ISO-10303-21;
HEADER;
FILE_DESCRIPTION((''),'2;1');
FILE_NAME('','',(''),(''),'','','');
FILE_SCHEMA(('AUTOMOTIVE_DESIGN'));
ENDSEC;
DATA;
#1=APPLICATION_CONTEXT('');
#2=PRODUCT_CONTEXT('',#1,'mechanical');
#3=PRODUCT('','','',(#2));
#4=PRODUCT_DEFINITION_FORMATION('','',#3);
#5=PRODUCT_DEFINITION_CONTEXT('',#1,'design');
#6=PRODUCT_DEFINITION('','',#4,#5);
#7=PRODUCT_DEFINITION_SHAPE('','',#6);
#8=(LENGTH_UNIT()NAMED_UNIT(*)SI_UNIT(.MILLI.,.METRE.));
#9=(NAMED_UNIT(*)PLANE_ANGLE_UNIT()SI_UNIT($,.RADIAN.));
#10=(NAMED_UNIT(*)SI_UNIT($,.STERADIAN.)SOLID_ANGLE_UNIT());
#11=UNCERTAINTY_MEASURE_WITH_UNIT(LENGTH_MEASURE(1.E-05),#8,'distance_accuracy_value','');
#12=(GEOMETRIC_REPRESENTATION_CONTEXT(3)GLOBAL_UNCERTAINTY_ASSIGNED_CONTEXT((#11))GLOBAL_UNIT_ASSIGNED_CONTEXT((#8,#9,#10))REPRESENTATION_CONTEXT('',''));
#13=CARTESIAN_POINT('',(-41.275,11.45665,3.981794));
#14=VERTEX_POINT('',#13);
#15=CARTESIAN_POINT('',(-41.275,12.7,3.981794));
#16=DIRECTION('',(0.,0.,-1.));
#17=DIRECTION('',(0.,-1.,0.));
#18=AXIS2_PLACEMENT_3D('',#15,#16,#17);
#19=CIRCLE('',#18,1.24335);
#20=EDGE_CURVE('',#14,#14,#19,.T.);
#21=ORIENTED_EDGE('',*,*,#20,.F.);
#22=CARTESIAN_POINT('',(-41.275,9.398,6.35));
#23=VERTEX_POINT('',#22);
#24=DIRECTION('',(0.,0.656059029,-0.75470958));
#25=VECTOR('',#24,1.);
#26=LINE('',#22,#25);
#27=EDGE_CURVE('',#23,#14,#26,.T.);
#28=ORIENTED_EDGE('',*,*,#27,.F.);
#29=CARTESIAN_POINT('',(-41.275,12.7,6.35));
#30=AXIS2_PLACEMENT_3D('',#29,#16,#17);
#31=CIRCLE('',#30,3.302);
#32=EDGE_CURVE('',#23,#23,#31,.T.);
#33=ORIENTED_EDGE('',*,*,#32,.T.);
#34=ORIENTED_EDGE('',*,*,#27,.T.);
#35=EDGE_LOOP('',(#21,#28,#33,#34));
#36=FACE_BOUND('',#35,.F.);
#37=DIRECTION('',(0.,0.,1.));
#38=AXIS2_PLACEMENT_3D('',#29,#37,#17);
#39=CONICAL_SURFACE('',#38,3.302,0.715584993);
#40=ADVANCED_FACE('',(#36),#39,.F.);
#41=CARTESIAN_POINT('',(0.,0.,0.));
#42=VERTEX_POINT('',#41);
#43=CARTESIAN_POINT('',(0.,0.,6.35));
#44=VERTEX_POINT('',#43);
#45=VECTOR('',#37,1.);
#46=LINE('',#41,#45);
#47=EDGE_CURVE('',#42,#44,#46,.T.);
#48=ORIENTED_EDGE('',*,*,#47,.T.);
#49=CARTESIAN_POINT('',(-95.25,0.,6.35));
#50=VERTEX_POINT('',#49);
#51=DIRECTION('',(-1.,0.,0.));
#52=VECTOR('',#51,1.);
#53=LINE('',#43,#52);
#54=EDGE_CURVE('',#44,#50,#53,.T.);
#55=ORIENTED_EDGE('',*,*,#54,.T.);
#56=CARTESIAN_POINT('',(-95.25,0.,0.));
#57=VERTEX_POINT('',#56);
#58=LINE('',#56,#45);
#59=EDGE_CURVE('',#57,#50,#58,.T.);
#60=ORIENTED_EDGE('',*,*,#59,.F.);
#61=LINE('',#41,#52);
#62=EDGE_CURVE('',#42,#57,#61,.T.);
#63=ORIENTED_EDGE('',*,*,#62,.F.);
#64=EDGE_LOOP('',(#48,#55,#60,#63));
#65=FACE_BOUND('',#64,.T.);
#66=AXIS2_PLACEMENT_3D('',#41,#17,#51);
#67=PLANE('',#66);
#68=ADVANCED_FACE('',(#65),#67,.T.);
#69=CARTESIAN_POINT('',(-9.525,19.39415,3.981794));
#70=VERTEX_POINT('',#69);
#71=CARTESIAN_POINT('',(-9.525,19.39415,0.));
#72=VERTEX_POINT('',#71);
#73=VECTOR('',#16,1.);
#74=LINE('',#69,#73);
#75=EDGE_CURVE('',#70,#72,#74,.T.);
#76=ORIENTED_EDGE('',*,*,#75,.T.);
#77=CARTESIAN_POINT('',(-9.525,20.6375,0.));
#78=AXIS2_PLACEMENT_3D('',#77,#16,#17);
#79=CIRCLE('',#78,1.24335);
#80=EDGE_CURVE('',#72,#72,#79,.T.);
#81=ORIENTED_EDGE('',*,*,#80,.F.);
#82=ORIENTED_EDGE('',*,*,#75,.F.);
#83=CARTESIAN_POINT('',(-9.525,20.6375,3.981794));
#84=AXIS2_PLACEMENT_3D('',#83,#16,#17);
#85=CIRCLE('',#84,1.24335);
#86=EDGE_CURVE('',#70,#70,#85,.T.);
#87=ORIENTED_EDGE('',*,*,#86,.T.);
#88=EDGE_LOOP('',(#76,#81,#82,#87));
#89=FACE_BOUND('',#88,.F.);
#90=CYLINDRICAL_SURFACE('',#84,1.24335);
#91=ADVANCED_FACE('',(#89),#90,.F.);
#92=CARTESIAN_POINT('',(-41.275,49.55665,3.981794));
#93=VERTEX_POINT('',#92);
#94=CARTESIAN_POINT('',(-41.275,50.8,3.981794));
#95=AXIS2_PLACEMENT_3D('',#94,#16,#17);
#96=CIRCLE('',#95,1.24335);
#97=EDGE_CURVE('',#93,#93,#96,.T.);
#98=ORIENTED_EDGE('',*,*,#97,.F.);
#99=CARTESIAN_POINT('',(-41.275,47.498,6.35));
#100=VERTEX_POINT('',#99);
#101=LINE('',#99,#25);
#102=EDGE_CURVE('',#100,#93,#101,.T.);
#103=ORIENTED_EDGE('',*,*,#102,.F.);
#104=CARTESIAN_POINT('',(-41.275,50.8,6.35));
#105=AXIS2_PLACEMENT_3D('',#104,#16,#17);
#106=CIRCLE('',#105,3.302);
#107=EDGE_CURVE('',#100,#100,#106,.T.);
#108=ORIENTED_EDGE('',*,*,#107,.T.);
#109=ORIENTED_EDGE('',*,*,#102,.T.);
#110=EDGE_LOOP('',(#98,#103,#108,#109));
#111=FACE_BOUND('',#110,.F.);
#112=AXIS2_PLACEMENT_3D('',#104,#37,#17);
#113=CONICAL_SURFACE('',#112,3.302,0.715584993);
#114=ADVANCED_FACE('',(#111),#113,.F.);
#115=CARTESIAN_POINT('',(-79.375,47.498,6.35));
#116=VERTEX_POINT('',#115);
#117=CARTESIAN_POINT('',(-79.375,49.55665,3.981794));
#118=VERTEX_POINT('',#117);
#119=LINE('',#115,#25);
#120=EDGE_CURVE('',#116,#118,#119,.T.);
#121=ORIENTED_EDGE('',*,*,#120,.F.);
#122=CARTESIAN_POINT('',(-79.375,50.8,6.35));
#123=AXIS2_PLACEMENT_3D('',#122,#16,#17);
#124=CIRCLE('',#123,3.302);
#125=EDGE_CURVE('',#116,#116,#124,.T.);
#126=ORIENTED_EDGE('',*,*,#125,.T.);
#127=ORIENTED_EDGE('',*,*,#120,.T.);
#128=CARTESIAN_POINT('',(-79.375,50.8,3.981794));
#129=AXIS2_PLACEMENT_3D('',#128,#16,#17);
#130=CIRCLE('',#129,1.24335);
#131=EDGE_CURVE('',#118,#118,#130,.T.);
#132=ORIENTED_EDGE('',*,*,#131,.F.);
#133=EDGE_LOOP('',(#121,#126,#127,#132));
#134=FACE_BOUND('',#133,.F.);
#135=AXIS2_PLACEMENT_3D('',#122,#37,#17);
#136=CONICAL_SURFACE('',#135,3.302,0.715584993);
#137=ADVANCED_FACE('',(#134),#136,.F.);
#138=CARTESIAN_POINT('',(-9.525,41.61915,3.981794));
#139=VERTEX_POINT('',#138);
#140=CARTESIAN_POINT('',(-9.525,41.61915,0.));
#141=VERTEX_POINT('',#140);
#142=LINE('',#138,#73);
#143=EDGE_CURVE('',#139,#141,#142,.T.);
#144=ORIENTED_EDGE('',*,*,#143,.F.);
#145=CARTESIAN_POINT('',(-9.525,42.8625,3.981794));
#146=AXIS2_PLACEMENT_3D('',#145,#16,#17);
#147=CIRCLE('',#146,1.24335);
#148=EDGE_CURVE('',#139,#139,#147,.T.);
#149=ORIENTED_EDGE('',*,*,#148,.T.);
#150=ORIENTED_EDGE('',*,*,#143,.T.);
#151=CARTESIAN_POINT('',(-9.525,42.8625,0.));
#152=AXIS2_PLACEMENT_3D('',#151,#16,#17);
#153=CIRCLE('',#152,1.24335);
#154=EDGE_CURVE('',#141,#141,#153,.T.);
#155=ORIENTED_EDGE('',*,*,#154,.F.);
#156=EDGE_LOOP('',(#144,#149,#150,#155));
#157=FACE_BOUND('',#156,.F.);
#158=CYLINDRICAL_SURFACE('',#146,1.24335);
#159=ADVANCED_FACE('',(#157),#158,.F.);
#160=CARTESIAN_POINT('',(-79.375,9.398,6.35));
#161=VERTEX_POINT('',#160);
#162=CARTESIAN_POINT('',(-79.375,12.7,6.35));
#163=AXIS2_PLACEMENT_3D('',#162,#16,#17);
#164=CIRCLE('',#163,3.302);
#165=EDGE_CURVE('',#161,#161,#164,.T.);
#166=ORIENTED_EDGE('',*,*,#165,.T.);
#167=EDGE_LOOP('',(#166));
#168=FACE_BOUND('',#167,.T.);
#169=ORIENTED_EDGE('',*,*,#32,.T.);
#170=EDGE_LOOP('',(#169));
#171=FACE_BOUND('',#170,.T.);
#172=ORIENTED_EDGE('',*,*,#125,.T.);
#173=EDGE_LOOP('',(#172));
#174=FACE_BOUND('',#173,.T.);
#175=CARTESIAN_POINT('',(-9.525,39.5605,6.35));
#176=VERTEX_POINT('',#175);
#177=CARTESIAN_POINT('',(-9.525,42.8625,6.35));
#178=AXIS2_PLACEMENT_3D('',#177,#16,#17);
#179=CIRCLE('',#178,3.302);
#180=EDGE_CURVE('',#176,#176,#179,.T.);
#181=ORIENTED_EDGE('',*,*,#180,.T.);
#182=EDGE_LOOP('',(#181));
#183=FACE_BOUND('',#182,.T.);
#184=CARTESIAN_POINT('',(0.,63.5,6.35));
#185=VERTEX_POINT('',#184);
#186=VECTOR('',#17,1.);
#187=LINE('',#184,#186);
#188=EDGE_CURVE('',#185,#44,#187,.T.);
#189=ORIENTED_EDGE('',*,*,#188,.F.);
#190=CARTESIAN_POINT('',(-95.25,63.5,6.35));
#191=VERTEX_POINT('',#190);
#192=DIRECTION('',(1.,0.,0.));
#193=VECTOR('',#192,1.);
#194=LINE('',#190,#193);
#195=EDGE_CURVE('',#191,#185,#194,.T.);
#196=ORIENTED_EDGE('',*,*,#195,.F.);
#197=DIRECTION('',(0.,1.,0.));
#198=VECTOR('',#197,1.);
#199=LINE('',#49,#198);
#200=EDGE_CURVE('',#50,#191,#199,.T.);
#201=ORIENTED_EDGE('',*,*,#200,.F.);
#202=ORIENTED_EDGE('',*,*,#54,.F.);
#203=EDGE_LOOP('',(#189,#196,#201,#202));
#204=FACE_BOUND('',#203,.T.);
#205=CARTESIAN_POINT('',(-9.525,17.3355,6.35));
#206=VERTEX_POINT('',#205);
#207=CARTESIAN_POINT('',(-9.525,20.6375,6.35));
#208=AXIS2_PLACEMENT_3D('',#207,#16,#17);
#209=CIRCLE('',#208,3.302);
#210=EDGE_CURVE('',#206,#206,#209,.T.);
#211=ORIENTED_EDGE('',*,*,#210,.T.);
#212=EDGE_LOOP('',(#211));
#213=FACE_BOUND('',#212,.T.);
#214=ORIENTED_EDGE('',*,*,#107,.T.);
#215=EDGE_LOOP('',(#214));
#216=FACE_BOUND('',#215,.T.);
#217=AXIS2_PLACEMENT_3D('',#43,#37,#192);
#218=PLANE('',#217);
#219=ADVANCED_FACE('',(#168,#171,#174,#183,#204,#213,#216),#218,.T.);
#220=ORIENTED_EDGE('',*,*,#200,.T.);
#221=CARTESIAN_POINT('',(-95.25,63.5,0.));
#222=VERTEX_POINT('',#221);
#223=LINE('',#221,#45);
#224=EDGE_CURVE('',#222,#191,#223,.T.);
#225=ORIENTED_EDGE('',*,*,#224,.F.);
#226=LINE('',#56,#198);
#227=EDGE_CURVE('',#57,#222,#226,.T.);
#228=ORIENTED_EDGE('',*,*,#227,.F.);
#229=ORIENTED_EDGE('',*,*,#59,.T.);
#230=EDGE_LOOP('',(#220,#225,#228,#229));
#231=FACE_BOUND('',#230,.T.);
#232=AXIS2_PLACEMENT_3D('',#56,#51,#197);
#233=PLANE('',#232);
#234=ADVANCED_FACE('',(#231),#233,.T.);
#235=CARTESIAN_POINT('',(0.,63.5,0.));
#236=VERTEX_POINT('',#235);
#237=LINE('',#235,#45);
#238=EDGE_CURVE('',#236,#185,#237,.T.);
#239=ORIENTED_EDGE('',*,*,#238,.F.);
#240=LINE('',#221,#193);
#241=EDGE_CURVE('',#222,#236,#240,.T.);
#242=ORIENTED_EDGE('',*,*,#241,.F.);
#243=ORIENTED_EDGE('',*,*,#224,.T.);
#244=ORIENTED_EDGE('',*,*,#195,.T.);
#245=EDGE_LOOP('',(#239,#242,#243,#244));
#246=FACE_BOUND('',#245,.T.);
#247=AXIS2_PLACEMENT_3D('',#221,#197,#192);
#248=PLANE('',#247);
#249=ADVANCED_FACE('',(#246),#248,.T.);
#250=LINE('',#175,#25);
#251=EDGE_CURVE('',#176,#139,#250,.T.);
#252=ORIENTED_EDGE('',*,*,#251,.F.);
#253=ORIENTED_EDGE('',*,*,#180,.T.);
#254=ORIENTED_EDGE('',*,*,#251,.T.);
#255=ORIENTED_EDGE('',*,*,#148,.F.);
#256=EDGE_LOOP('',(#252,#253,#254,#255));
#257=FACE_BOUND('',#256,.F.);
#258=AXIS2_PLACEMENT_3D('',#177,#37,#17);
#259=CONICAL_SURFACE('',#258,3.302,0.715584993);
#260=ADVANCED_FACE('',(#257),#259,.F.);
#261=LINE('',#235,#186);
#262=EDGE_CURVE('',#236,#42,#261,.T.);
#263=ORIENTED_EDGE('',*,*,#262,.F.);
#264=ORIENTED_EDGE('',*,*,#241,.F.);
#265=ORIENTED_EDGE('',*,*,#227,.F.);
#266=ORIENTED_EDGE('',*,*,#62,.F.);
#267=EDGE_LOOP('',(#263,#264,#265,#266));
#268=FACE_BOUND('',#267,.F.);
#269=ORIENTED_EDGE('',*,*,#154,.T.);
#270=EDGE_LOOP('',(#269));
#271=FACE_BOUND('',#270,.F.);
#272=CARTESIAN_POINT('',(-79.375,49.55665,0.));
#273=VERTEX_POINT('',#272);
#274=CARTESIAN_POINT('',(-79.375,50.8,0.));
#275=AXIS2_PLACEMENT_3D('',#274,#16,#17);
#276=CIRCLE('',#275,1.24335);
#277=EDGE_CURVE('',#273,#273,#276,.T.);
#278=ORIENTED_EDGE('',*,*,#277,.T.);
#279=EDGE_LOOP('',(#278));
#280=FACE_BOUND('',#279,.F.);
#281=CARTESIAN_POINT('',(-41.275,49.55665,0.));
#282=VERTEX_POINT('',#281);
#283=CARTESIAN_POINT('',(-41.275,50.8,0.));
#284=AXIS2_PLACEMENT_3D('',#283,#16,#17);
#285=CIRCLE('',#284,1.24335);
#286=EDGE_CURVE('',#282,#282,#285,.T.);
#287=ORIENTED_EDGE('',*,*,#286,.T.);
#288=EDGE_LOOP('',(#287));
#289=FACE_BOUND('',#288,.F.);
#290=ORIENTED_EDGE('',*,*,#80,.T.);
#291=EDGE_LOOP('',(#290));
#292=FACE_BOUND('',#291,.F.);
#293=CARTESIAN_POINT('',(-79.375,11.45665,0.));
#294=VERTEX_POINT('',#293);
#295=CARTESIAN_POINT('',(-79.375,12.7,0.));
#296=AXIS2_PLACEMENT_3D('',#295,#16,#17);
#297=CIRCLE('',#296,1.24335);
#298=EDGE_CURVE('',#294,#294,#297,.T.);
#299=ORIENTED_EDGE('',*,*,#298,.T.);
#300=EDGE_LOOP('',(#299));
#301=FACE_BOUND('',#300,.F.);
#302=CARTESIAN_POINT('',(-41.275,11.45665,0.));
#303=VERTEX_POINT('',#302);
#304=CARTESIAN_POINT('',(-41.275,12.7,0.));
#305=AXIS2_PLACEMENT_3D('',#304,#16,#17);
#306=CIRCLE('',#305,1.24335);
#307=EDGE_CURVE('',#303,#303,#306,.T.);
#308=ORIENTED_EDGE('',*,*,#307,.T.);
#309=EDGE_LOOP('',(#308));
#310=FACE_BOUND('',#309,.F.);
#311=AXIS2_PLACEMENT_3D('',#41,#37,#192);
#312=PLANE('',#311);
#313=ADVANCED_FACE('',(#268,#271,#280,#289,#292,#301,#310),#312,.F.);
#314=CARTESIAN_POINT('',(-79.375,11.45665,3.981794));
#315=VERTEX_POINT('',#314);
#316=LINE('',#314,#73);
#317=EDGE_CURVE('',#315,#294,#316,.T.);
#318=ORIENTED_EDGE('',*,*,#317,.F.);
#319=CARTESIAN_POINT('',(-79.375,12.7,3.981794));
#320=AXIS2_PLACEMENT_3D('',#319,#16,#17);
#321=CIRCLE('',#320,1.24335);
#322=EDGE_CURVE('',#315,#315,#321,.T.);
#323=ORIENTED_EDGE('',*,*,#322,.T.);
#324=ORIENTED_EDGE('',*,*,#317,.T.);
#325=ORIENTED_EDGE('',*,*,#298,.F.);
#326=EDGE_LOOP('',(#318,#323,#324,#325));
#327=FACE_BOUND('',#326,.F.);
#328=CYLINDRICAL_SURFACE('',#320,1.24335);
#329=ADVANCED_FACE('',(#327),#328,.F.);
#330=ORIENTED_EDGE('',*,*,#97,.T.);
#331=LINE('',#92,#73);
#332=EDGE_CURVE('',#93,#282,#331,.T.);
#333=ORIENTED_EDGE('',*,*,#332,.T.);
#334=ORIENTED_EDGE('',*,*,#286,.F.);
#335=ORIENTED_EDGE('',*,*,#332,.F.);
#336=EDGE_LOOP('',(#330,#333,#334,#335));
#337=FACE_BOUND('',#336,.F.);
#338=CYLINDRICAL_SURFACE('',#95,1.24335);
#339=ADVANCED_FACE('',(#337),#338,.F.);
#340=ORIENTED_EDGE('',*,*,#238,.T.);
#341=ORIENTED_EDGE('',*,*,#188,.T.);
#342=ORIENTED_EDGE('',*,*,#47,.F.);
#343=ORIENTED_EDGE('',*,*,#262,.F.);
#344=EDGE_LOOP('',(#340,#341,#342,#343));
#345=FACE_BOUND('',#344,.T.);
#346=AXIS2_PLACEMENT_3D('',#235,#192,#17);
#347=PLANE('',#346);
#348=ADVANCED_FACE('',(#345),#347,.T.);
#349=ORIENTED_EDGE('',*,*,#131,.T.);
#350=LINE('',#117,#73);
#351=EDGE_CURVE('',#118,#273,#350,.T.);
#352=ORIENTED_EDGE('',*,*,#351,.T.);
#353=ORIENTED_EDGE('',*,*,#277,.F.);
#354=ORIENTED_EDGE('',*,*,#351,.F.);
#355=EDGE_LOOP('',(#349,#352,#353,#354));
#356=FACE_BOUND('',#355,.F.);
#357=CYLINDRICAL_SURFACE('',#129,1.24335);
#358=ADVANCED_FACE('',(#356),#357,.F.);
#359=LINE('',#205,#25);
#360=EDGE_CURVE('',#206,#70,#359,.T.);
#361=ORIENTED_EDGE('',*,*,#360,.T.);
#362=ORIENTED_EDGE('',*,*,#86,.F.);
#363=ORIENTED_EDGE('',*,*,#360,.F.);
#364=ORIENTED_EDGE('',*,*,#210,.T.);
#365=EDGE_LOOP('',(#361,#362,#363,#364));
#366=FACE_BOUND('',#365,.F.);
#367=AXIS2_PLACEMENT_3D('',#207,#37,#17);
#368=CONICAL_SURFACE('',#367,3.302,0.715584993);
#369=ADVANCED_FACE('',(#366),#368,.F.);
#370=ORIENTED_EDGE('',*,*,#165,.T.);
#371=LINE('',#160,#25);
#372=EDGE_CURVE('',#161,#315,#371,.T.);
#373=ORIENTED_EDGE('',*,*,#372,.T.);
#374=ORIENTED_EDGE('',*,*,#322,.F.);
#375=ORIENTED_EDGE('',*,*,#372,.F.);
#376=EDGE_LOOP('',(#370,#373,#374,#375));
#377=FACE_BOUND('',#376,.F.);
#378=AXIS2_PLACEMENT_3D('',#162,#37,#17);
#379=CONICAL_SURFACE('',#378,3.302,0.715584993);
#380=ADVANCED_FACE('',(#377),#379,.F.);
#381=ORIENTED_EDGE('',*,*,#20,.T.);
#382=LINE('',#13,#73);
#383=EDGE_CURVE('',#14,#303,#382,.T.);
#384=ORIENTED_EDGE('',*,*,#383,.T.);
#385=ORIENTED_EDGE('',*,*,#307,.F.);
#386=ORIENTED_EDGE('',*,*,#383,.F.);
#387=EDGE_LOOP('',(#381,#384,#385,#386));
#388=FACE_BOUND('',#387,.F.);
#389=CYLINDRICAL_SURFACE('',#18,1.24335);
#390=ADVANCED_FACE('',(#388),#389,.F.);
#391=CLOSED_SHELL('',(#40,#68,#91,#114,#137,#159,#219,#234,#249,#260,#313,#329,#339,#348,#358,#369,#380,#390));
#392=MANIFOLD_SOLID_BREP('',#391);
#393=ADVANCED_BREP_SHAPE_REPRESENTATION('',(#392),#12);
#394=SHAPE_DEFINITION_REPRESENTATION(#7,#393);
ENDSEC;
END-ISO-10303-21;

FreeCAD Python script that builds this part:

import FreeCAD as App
import Part
import Sketcher

V = App.Vector
Q = App.Units.Quantity

doc = App.newDocument("Part")
body = doc.addObject("PartDesign::Body", "Body")

sketch1 = body.newObject("Sketcher::SketchObject", "Sketch")
sketch1.AttachmentSupport = (doc.getObject("XY_Plane"), [""])
sketch1.MapMode = "FlatFace"
sketch1.addGeometry(Part.LineSegment(V(-95.25, 0, 0), V(0, 0, 0)), False)
sketch1.addGeometry(Part.LineSegment(V(0, 0, 0), V(0, 63.5, 0)), False)
sketch1.addGeometry(Part.LineSegment(V(0, 63.5, 0), V(-95.25, 63.5, 0)), False)
sketch1.addGeometry(Part.LineSegment(V(-95.25, 63.5, 0), V(-95.25, 0, 0)), False)
sketch1.addConstraint(Sketcher.Constraint("Coincident", 0, 2, 1, 1))
sketch1.addConstraint(Sketcher.Constraint("Coincident", 1, 2, 2, 1))
sketch1.addConstraint(Sketcher.Constraint("Coincident", 2, 2, 3, 1))
sketch1.addConstraint(Sketcher.Constraint("Coincident", 3, 2, 0, 1))
sketch1.addConstraint(Sketcher.Constraint("Horizontal", 0))
sketch1.addConstraint(Sketcher.Constraint("Vertical", 1))
sketch1.addConstraint(Sketcher.Constraint("Horizontal", 2))
sketch1.addConstraint(Sketcher.Constraint("Vertical", 3))
sketch1.addConstraint(Sketcher.Constraint("Coincident", 0, 2, -1, 1))
sketch1.addConstraint(Sketcher.Constraint("DistanceY", 1, 1, 1, 2, Q("2.5 in")))
sketch1.addConstraint(Sketcher.Constraint("DistanceX", 0, 1, 0, 2, Q("3.75 in")))
pad1 = body.newObject("PartDesign::Pad", "Pad")
pad1.Profile = sketch1
pad1.Length = Q("0.25 in")

sketch2 = body.newObject("Sketcher::SketchObject", "Sketch001")
sketch2.AttachmentSupport = (doc.getObject("XY_Plane"), [""])
sketch2.MapMode = "FlatFace"
sketch2.AttachmentOffset = App.Placement(V(0, 0, 0.25 * 25.4), App.Rotation())
sketch2.addGeometry(Part.Circle(V(-79.375, 50.8, 0), V(0, 0, 1), 1.24335), False)
sketch2.addGeometry(Part.Circle(V(-41.275, 50.8, 0), V(0, 0, 1), 1.24335), False)
sketch2.addGeometry(Part.Circle(V(-9.525, 42.8625, 0), V(0, 0, 1), 1.24335), False)
sketch2.addGeometry(Part.Circle(V(-9.525, 20.6375, 0), V(0, 0, 1), 1.24335), False)
sketch2.addGeometry(Part.Circle(V(-41.275, 12.7, 0), V(0, 0, 1), 1.24335), False)
sketch2.addGeometry(Part.Circle(V(-79.375, 12.7, 0), V(0, 0, 1), 1.24335), False)
sketch2.addConstraint(Sketcher.Constraint("Equal", 0, 1))
sketch2.addConstraint(Sketcher.Constraint("Equal", 1, 2))
sketch2.addConstraint(Sketcher.Constraint("Equal", 2, 3))
sketch2.addConstraint(Sketcher.Constraint("Equal", 3, 4))
sketch2.addConstraint(Sketcher.Constraint("Equal", 4, 5))
sketch2.addConstraint(Sketcher.Constraint("Horizontal", 0, 3, 1, 3))
sketch2.addConstraint(Sketcher.Constraint("Horizontal", 4, 3, 5, 3))
sketch2.addConstraint(Sketcher.Constraint("Vertical", 2, 3, 3, 3))
sketch2.addConstraint(Sketcher.Constraint("Vertical", 1, 3, 4, 3))
sketch2.addConstraint(Sketcher.Constraint("Vertical", 0, 3, 5, 3))
sketch2.addConstraint(Sketcher.Constraint("DistanceY", -1, 1, 0, 3, Q("2 in")))
sketch2.addConstraint(Sketcher.Constraint("Diameter", 0, Q("0.0979 in")))
sketch2.addConstraint(Sketcher.Constraint("DistanceY", -1, 1, 4, 3, Q("0.5 in")))
sketch2.addConstraint(Sketcher.Constraint("DistanceX", 0, 3, 1, 3, Q("1.5 in")))
sketch2.addConstraint(Sketcher.Constraint("DistanceX", 1, 3, 2, 3, Q("1.25 in")))
sketch2.addConstraint(Sketcher.Constraint("DistanceX", 0, 3, -1, 1, Q("3.125 in")))
sketch2.addConstraint(Sketcher.Constraint("DistanceY", -1, 1, 2, 3, Q("1.6875 in")))
sketch2.addConstraint(Sketcher.Constraint("DistanceY", -1, 1, 3, 3, Q("0.8125 in")))
doc.recompute()
hole = body.newObject("PartDesign::Hole", "Hole")
hole.Profile = sketch2
hole.ThreadType = "None"
hole.Diameter = Q("0.0979016 in")
hole.DepthType = "ThroughAll"
hole.HoleCutType = "Countersink"
hole.HoleCutDiameter = Q("0.26 in")
hole.HoleCutCountersinkAngle = 82

doc.recompute()
